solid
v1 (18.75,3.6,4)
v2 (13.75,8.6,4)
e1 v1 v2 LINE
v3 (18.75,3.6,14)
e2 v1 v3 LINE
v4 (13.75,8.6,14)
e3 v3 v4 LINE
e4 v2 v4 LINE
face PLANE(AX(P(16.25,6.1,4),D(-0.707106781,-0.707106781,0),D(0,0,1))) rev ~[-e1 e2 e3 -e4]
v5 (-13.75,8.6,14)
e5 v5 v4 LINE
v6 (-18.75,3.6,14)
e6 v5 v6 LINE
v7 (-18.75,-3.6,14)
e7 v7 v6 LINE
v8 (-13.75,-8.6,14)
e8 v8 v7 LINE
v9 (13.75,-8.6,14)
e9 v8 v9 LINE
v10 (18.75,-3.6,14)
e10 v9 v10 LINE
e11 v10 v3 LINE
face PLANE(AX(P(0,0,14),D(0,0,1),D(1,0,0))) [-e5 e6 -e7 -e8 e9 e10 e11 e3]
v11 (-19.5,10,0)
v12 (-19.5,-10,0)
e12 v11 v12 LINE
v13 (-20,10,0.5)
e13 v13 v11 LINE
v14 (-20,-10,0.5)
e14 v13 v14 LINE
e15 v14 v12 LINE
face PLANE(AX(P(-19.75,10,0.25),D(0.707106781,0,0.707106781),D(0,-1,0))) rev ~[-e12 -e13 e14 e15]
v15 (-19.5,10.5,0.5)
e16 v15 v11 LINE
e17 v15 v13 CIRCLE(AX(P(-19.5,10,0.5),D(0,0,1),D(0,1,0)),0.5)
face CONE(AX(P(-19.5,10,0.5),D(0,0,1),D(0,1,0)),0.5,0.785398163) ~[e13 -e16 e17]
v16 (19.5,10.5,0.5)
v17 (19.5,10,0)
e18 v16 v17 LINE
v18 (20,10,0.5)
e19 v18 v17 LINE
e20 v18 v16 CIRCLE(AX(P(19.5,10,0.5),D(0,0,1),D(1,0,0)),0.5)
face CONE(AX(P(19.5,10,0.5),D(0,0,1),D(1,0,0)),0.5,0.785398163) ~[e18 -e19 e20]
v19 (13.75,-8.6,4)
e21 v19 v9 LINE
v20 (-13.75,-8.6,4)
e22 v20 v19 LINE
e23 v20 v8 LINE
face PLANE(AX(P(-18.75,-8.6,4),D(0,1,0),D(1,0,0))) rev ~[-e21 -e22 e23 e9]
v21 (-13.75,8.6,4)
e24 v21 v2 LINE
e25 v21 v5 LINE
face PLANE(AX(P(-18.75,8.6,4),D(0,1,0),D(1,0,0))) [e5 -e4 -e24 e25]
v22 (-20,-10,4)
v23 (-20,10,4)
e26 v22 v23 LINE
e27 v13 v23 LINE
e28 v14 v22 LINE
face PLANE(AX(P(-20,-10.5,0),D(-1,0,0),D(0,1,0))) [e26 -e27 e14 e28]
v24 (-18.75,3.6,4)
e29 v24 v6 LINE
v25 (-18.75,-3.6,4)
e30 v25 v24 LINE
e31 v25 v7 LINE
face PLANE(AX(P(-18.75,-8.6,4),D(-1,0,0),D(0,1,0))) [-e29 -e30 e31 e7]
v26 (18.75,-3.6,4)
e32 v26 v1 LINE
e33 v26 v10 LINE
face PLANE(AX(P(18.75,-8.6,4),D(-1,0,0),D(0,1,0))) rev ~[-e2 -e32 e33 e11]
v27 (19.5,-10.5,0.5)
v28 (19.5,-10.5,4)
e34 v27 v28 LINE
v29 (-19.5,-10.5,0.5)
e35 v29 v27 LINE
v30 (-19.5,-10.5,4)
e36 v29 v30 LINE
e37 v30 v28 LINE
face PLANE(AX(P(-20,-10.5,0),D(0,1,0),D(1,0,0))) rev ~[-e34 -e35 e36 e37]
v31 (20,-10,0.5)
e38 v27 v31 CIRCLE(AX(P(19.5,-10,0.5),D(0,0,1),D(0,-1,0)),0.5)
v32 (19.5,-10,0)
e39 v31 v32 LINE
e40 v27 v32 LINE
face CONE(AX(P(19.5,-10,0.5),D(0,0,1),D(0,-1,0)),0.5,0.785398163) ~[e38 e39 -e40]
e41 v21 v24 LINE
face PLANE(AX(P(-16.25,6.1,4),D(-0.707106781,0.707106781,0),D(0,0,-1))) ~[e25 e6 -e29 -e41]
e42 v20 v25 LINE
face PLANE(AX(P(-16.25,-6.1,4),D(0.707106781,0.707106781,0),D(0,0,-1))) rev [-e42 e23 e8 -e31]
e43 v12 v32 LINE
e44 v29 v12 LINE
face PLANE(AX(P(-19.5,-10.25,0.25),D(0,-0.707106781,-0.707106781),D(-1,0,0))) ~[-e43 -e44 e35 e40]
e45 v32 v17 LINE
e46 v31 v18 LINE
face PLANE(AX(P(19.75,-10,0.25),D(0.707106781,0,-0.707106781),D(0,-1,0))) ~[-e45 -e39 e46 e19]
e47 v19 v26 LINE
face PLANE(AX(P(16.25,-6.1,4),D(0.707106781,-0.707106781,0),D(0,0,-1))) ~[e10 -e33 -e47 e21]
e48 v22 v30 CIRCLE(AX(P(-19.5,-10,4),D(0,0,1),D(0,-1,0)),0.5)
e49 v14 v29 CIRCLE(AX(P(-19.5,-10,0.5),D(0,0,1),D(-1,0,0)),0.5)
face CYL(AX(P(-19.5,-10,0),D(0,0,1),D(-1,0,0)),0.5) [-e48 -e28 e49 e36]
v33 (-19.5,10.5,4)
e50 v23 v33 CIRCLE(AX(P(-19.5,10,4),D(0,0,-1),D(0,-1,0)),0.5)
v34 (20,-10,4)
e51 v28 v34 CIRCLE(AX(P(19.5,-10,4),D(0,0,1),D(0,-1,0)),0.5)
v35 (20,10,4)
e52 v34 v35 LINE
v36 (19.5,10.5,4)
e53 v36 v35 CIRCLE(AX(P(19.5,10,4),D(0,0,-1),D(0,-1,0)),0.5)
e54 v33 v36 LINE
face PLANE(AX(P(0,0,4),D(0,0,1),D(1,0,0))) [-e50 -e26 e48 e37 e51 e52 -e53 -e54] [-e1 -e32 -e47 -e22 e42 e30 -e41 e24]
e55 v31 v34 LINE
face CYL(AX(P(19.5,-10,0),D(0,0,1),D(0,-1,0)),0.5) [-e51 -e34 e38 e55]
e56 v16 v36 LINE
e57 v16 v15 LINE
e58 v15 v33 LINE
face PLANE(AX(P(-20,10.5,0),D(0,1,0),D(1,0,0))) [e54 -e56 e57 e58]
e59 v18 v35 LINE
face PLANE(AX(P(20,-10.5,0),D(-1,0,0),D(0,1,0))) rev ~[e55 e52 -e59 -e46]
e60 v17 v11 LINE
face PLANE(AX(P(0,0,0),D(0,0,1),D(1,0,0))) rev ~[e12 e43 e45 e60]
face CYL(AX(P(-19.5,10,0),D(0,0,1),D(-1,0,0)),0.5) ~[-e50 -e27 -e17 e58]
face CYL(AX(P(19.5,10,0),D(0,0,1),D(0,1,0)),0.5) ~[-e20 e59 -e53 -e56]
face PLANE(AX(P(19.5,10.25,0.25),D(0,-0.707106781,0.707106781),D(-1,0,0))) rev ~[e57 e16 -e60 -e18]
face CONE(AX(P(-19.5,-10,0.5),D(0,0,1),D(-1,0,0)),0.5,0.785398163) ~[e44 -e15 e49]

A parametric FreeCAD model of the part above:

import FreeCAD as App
import Part
import Sketcher


def edges_at(feature, points):
    """Names of the edges that pass closest to the given points."""
    edges = feature.Shape.Edges
    near = lambda p: min(range(len(edges)), key=lambda i: edges[i].distToShape(Part.Vertex(*p))[0])
    return sorted({f"Edge{near(p) + 1}" for p in points})


def add_polygon(sketch, points):
    """Adds a closed chain of lines whose ends are joined by coincident constraints."""
    first, n = sketch.GeometryCount, len(points)
    for a, b in zip(points, points[1:] + points[:1]):
        sketch.addGeometry(Part.LineSegment(App.Vector(*a, 0), App.Vector(*b, 0)), False)
    for i in range(n):
        sketch.addConstraint(Sketcher.Constraint("Coincident", first + i, 2, first + (i + 1) % n, 1))

doc = App.newDocument("Part")
body = doc.addObject("PartDesign::Body", "Body")

# Sketch on XY plane
sketch1 = body.newObject("Sketcher::SketchObject", "Sketch")
sketch1.AttachmentSupport = (doc.getObject("XY_Plane"), [""])
sketch1.MapMode = "FlatFace"
add_polygon(sketch1, [(-20, 10), (-20, -10), (20, -10), (20, 10)])  # lines 0-3
sketch1.addConstraint([
    Sketcher.Constraint("Vertical", 0),
    Sketcher.Constraint("Horizontal", 1),
    Sketcher.Constraint("Vertical", 2),
    Sketcher.Constraint("Horizontal", 3),
    Sketcher.Constraint("Symmetric", 0, 2, 2, 2, -1, 1),
    Sketcher.Constraint("DistanceX", 1, 1, 1, 2, 40.0),
    Sketcher.Constraint("DistanceY", 0, 2, 0, 1, 21.0),
])
pad1 = body.newObject("PartDesign::Pad", "Pad")
pad1.Profile = sketch1
pad1.Length = 4

# Sketch on XY plane
sketch2 = body.newObject("Sketcher::SketchObject", "Sketch001")
sketch2.AttachmentSupport = (doc.getObject("XY_Plane"), [""])
sketch2.MapMode = "FlatFace"
sketch2.AttachmentOffset = App.Placement(App.Vector(0, 0, 4), App.Rotation())
add_polygon(sketch2, [(-19, 9), (-19, -9), (19, -9), (19, 9)])  # lines 0-3
sketch2.addConstraint([
    Sketcher.Constraint("Vertical", 0),
    Sketcher.Constraint("Horizontal", 1),
    Sketcher.Constraint("Vertical", 2),
    Sketcher.Constraint("Horizontal", 3),
    Sketcher.Constraint("Symmetric", 0, 2, 2, 2, -1, 1),
    Sketcher.Constraint("DistanceX", 1, 1, 1, 2, 37.5),
    Sketcher.Constraint("DistanceY", 0, 2, 0, 1, 17.2),
])
pad2 = body.newObject("PartDesign::Pad", "Pad001")
pad2.Profile = sketch2
pad2.Length = 10
doc.recompute()

chamfer = body.newObject("PartDesign::Chamfer", "Chamfer")
chamfer.Base = (pad2, edges_at(pad2, [
    (18.75, -8.6, 9),
    (-18.75, -8.6, 9),
    (18.75, 8.6, 9),
    (-18.75, 8.6, 9),
]))
chamfer.Size = 5
doc.recompute()

fillet = body.newObject("PartDesign::Fillet", "Fillet")
fillet.Base = (chamfer, edges_at(chamfer, [
    (-20, -10.5, 2),
    (-20, 10.5, 2),
    (20, -10.5, 2),
    (20, 10.5, 2),
]))
fillet.Radius = 0.5
doc.recompute()

chamfer2 = body.newObject("PartDesign::Chamfer", "Chamfer001")
chamfer2.Base = (fillet, edges_at(fillet, [(20, 0, 0)]))
chamfer2.Size = 0.5

doc.recompute()
